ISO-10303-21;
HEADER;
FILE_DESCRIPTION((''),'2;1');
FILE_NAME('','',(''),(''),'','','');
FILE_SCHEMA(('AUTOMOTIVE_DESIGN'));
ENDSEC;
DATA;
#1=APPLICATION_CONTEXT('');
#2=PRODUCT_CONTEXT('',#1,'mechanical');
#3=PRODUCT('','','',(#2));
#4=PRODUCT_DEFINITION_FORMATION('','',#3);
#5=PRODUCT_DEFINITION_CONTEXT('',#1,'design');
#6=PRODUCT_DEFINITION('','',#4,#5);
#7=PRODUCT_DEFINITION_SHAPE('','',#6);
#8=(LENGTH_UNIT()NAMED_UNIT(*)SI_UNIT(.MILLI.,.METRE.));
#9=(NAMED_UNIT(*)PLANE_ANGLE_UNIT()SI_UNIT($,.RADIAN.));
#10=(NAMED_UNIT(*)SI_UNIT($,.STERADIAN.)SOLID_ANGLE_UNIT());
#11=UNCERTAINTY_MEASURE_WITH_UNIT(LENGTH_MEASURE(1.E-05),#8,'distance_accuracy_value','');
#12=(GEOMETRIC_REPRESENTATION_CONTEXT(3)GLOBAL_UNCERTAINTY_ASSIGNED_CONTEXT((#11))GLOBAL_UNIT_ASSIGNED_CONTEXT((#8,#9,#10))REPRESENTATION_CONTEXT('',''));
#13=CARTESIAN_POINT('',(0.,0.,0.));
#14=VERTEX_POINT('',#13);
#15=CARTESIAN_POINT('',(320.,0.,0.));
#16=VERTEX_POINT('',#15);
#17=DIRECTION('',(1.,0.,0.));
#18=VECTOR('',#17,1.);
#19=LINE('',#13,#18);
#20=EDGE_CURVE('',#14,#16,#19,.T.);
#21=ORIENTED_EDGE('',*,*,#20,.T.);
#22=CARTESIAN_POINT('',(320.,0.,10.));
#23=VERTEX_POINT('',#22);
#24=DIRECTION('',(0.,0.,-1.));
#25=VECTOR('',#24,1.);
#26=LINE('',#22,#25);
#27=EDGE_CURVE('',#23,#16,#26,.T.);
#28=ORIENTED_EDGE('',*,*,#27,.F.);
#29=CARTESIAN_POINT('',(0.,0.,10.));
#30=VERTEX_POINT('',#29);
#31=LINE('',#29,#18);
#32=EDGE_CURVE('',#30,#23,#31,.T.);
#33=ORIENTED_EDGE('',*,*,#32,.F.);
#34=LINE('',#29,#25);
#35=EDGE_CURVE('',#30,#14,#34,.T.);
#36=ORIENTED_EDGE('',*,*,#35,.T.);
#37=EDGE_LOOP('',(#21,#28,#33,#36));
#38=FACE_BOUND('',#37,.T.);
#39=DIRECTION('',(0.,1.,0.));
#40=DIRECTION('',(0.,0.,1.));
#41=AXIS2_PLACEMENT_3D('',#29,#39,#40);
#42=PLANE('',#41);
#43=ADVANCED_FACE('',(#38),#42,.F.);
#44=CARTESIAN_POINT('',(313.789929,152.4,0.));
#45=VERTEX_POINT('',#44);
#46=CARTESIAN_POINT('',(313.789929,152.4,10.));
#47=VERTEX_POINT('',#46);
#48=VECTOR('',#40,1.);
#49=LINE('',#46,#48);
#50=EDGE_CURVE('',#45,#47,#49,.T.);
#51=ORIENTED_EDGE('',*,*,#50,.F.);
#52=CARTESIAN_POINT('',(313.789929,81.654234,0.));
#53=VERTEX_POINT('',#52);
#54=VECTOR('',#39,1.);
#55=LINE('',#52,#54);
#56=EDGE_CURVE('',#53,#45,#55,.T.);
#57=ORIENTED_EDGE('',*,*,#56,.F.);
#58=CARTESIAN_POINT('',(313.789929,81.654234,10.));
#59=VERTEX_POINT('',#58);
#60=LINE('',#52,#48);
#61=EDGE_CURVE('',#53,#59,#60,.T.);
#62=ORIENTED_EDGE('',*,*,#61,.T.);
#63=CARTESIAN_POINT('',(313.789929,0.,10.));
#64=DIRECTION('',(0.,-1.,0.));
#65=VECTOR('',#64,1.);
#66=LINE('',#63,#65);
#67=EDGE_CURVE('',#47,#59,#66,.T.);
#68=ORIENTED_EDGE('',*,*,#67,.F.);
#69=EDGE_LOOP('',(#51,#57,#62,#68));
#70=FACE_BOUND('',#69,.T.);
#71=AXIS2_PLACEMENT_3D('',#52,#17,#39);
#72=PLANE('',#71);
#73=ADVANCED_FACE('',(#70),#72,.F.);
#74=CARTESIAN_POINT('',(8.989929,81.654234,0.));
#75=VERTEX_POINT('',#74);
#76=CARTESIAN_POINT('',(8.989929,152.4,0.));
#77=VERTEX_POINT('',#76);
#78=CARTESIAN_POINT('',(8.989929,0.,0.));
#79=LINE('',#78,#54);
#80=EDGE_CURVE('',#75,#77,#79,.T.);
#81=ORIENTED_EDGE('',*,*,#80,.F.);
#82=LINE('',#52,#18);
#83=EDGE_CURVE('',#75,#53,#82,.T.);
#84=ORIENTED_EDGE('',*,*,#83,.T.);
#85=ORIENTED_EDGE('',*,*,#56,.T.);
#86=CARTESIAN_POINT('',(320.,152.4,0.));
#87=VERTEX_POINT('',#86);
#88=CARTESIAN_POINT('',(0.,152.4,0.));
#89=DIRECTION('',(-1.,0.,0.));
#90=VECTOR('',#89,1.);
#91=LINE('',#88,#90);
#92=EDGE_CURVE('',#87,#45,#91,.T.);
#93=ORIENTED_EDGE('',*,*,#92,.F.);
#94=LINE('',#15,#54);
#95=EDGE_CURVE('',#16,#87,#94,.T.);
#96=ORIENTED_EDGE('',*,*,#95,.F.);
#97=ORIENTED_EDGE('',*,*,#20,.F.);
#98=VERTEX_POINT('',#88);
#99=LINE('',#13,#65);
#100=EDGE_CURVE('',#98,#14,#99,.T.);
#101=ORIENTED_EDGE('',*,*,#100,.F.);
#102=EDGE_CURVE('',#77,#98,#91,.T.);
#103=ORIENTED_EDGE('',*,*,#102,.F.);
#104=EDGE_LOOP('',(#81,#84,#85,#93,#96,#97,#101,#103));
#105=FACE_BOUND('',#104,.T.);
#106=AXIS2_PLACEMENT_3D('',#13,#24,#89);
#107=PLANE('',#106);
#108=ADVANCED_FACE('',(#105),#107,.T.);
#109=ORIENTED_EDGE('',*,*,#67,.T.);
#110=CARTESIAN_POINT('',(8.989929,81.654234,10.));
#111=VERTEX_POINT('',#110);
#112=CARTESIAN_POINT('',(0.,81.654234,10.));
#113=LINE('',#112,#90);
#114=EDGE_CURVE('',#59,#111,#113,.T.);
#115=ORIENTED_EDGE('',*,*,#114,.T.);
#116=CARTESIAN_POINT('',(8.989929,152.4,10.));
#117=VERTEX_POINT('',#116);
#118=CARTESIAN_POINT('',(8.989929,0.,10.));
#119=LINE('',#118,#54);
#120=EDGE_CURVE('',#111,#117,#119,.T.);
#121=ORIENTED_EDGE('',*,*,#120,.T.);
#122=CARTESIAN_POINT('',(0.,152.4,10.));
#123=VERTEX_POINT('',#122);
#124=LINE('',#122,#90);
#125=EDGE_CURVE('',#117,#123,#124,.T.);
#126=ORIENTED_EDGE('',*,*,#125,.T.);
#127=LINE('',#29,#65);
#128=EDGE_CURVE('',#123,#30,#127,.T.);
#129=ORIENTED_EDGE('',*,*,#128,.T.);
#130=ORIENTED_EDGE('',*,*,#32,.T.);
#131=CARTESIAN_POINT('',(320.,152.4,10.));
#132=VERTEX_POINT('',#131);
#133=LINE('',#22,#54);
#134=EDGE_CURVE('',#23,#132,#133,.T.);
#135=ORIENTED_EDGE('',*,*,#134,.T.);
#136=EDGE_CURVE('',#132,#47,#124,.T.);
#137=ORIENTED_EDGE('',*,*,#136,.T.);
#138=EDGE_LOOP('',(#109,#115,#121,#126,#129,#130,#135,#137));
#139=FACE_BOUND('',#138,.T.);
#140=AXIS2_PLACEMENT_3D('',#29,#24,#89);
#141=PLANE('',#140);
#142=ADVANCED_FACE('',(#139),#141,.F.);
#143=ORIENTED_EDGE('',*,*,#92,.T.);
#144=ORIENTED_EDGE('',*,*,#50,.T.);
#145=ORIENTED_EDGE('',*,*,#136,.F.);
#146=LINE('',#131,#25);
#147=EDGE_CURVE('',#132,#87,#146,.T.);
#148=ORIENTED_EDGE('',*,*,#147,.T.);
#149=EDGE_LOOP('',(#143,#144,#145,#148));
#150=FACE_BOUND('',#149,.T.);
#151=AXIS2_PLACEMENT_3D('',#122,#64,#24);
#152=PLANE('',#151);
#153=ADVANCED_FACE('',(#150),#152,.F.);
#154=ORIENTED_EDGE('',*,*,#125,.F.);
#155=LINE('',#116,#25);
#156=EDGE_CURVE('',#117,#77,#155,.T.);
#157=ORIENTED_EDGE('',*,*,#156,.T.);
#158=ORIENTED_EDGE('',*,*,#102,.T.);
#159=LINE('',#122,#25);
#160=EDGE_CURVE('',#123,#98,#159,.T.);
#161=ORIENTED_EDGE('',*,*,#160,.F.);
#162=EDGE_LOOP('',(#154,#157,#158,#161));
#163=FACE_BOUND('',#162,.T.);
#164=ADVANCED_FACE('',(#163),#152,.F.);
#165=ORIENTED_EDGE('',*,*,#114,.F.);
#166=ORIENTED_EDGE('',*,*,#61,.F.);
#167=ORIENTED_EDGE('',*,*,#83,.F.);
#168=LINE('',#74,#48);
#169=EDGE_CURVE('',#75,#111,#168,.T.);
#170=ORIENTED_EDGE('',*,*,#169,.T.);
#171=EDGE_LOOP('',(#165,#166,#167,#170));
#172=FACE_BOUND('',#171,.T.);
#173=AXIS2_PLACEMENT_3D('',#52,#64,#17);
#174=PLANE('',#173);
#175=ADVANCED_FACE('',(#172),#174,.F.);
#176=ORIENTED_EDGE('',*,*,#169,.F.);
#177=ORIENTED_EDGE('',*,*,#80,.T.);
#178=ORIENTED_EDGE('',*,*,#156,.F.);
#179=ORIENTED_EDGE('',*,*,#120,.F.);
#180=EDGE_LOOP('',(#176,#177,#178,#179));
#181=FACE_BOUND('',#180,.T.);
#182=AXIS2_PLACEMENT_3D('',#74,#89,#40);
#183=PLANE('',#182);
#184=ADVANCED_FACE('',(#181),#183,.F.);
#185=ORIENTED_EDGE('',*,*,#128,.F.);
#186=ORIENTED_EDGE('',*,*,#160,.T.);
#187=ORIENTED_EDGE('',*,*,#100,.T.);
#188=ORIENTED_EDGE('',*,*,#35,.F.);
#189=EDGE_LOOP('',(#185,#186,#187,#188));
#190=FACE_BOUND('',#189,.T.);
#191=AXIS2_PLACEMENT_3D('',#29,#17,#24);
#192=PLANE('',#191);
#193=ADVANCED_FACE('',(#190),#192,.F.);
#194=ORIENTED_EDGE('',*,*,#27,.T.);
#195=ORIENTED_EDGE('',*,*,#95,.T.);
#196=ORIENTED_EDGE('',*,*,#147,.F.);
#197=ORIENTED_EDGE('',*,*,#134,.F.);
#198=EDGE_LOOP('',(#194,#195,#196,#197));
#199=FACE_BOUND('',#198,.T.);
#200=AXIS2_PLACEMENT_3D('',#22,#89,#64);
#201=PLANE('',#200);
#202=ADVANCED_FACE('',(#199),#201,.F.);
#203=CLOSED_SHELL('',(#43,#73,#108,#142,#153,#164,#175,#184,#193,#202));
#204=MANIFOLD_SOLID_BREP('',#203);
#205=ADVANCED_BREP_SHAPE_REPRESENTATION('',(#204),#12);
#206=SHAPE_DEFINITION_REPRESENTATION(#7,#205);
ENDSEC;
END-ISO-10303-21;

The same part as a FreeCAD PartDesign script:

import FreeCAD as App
import Part
import Sketcher

doc = App.newDocument("Part")
params = doc.addObject("Spreadsheet::Sheet", "Params")
for row, (alias, value) in enumerate([
    ("sketch1_width", "320 mm"),
    ("sketch1_height", "152.4 mm"),
    ("pad1_length", "10 mm"),
    ("sketch2_width", "304.8 mm"),
], start=1):
    params.set(f"A{row}", alias)
    params.set(f"B{row}", "=" + value)
    params.setAlias(f"B{row}", alias)

body = doc.addObject("PartDesign::Body", "Body")

sketch1 = doc.addObject("Sketcher::SketchObject", "Sketch")
body.addObject(sketch1)
sketch1.AttachmentSupport = (doc.XY_Plane, [""])
sketch1.MapMode = "FlatFace"
sketch1.addGeometry(Part.LineSegment(App.Vector(0, 152, 0), App.Vector(0, 0, 0)), False)
sketch1.addGeometry(Part.LineSegment(App.Vector(0, 0, 0), App.Vector(320, 0, 0)), False)
sketch1.addGeometry(Part.LineSegment(App.Vector(320, 0, 0), App.Vector(320, 152, 0)), False)
sketch1.addGeometry(Part.LineSegment(App.Vector(320, 152, 0), App.Vector(0, 152, 0)), False)
sketch1.addConstraint(Sketcher.Constraint("Coincident", 0, 2, 1, 1))
sketch1.addConstraint(Sketcher.Constraint("Coincident", 1, 2, 2, 1))
sketch1.addConstraint(Sketcher.Constraint("Coincident", 2, 2, 3, 1))
sketch1.addConstraint(Sketcher.Constraint("Coincident", 3, 2, 0, 1))
sketch1.addConstraint(Sketcher.Constraint("Vertical", 0))
sketch1.addConstraint(Sketcher.Constraint("Horizontal", 1))
sketch1.addConstraint(Sketcher.Constraint("Vertical", 2))
sketch1.addConstraint(Sketcher.Constraint("Horizontal", 3))
sketch1.addConstraint(Sketcher.Constraint("Coincident", 0, 2, -1, 1))
sketch1.addConstraint(Sketcher.Constraint("DistanceX", 1, 1, 1, 2, 320.0))
sketch1.addConstraint(Sketcher.Constraint("DistanceY", 0, 2, 0, 1, 152.4))
sketch1.setExpression("Constraints[9]", "Params.sketch1_width")
sketch1.setExpression("Constraints[10]", "Params.sketch1_height")
pad1 = doc.addObject("PartDesign::Pad", "Pad")
body.addObject(pad1)
pad1.Profile = sketch1
pad1.setExpression("Length", "Params.pad1_length")

sketch2 = doc.addObject("Sketcher::SketchObject", "Sketch001")
body.addObject(sketch2)
sketch2.AttachmentSupport = (doc.XY_Plane, [""])
sketch2.MapMode = "FlatFace"
sketch2.AttachmentOffset = App.Placement(App.Vector(0, 0, 10), App.Rotation())
sketch2.addGeometry(Part.LineSegment(App.Vector(9, 157, 0), App.Vector(9, 82, 0)), False)
sketch2.addGeometry(Part.LineSegment(App.Vector(9, 82, 0), App.Vector(314, 82, 0)), False)
sketch2.addGeometry(Part.LineSegment(App.Vector(314, 82, 0), App.Vector(314, 157, 0)), False)
sketch2.addGeometry(Part.LineSegment(App.Vector(314, 157, 0), App.Vector(9, 157, 0)), False)
sketch2.addConstraint(Sketcher.Constraint("Coincident", 0, 2, 1, 1))
sketch2.addConstraint(Sketcher.Constraint("Coincident", 1, 2, 2, 1))
sketch2.addConstraint(Sketcher.Constraint("Coincident", 2, 2, 3, 1))
sketch2.addConstraint(Sketcher.Constraint("Coincident", 3, 2, 0, 1))
sketch2.addConstraint(Sketcher.Constraint("Vertical", 0))
sketch2.addConstraint(Sketcher.Constraint("Horizontal", 1))
sketch2.addConstraint(Sketcher.Constraint("Vertical", 2))
sketch2.addConstraint(Sketcher.Constraint("Horizontal", 3))
sketch2.addConstraint(Sketcher.Constraint("DistanceX", 1, 1, 1, 2, 304.8))
sketch2.addConstraint(Sketcher.Constraint("DistanceY", 0, 2, 0, 1, 75.379725))
sketch2.addConstraint(Sketcher.Constraint("DistanceX", -1, 1, 0, 2, 8.989929))
sketch2.addConstraint(Sketcher.Constraint("DistanceY", -1, 1, 2, 2, 157.033959))
sketch2.setExpression("Constraints[8]", "Params.sketch2_width")
pocket1 = doc.addObject("PartDesign::Pocket", "Pocket")
body.addObject(pocket1)
pocket1.Profile = sketch2
pocket1.Type = "ThroughAll"
pocket1.Midplane = True

doc.recompute()
